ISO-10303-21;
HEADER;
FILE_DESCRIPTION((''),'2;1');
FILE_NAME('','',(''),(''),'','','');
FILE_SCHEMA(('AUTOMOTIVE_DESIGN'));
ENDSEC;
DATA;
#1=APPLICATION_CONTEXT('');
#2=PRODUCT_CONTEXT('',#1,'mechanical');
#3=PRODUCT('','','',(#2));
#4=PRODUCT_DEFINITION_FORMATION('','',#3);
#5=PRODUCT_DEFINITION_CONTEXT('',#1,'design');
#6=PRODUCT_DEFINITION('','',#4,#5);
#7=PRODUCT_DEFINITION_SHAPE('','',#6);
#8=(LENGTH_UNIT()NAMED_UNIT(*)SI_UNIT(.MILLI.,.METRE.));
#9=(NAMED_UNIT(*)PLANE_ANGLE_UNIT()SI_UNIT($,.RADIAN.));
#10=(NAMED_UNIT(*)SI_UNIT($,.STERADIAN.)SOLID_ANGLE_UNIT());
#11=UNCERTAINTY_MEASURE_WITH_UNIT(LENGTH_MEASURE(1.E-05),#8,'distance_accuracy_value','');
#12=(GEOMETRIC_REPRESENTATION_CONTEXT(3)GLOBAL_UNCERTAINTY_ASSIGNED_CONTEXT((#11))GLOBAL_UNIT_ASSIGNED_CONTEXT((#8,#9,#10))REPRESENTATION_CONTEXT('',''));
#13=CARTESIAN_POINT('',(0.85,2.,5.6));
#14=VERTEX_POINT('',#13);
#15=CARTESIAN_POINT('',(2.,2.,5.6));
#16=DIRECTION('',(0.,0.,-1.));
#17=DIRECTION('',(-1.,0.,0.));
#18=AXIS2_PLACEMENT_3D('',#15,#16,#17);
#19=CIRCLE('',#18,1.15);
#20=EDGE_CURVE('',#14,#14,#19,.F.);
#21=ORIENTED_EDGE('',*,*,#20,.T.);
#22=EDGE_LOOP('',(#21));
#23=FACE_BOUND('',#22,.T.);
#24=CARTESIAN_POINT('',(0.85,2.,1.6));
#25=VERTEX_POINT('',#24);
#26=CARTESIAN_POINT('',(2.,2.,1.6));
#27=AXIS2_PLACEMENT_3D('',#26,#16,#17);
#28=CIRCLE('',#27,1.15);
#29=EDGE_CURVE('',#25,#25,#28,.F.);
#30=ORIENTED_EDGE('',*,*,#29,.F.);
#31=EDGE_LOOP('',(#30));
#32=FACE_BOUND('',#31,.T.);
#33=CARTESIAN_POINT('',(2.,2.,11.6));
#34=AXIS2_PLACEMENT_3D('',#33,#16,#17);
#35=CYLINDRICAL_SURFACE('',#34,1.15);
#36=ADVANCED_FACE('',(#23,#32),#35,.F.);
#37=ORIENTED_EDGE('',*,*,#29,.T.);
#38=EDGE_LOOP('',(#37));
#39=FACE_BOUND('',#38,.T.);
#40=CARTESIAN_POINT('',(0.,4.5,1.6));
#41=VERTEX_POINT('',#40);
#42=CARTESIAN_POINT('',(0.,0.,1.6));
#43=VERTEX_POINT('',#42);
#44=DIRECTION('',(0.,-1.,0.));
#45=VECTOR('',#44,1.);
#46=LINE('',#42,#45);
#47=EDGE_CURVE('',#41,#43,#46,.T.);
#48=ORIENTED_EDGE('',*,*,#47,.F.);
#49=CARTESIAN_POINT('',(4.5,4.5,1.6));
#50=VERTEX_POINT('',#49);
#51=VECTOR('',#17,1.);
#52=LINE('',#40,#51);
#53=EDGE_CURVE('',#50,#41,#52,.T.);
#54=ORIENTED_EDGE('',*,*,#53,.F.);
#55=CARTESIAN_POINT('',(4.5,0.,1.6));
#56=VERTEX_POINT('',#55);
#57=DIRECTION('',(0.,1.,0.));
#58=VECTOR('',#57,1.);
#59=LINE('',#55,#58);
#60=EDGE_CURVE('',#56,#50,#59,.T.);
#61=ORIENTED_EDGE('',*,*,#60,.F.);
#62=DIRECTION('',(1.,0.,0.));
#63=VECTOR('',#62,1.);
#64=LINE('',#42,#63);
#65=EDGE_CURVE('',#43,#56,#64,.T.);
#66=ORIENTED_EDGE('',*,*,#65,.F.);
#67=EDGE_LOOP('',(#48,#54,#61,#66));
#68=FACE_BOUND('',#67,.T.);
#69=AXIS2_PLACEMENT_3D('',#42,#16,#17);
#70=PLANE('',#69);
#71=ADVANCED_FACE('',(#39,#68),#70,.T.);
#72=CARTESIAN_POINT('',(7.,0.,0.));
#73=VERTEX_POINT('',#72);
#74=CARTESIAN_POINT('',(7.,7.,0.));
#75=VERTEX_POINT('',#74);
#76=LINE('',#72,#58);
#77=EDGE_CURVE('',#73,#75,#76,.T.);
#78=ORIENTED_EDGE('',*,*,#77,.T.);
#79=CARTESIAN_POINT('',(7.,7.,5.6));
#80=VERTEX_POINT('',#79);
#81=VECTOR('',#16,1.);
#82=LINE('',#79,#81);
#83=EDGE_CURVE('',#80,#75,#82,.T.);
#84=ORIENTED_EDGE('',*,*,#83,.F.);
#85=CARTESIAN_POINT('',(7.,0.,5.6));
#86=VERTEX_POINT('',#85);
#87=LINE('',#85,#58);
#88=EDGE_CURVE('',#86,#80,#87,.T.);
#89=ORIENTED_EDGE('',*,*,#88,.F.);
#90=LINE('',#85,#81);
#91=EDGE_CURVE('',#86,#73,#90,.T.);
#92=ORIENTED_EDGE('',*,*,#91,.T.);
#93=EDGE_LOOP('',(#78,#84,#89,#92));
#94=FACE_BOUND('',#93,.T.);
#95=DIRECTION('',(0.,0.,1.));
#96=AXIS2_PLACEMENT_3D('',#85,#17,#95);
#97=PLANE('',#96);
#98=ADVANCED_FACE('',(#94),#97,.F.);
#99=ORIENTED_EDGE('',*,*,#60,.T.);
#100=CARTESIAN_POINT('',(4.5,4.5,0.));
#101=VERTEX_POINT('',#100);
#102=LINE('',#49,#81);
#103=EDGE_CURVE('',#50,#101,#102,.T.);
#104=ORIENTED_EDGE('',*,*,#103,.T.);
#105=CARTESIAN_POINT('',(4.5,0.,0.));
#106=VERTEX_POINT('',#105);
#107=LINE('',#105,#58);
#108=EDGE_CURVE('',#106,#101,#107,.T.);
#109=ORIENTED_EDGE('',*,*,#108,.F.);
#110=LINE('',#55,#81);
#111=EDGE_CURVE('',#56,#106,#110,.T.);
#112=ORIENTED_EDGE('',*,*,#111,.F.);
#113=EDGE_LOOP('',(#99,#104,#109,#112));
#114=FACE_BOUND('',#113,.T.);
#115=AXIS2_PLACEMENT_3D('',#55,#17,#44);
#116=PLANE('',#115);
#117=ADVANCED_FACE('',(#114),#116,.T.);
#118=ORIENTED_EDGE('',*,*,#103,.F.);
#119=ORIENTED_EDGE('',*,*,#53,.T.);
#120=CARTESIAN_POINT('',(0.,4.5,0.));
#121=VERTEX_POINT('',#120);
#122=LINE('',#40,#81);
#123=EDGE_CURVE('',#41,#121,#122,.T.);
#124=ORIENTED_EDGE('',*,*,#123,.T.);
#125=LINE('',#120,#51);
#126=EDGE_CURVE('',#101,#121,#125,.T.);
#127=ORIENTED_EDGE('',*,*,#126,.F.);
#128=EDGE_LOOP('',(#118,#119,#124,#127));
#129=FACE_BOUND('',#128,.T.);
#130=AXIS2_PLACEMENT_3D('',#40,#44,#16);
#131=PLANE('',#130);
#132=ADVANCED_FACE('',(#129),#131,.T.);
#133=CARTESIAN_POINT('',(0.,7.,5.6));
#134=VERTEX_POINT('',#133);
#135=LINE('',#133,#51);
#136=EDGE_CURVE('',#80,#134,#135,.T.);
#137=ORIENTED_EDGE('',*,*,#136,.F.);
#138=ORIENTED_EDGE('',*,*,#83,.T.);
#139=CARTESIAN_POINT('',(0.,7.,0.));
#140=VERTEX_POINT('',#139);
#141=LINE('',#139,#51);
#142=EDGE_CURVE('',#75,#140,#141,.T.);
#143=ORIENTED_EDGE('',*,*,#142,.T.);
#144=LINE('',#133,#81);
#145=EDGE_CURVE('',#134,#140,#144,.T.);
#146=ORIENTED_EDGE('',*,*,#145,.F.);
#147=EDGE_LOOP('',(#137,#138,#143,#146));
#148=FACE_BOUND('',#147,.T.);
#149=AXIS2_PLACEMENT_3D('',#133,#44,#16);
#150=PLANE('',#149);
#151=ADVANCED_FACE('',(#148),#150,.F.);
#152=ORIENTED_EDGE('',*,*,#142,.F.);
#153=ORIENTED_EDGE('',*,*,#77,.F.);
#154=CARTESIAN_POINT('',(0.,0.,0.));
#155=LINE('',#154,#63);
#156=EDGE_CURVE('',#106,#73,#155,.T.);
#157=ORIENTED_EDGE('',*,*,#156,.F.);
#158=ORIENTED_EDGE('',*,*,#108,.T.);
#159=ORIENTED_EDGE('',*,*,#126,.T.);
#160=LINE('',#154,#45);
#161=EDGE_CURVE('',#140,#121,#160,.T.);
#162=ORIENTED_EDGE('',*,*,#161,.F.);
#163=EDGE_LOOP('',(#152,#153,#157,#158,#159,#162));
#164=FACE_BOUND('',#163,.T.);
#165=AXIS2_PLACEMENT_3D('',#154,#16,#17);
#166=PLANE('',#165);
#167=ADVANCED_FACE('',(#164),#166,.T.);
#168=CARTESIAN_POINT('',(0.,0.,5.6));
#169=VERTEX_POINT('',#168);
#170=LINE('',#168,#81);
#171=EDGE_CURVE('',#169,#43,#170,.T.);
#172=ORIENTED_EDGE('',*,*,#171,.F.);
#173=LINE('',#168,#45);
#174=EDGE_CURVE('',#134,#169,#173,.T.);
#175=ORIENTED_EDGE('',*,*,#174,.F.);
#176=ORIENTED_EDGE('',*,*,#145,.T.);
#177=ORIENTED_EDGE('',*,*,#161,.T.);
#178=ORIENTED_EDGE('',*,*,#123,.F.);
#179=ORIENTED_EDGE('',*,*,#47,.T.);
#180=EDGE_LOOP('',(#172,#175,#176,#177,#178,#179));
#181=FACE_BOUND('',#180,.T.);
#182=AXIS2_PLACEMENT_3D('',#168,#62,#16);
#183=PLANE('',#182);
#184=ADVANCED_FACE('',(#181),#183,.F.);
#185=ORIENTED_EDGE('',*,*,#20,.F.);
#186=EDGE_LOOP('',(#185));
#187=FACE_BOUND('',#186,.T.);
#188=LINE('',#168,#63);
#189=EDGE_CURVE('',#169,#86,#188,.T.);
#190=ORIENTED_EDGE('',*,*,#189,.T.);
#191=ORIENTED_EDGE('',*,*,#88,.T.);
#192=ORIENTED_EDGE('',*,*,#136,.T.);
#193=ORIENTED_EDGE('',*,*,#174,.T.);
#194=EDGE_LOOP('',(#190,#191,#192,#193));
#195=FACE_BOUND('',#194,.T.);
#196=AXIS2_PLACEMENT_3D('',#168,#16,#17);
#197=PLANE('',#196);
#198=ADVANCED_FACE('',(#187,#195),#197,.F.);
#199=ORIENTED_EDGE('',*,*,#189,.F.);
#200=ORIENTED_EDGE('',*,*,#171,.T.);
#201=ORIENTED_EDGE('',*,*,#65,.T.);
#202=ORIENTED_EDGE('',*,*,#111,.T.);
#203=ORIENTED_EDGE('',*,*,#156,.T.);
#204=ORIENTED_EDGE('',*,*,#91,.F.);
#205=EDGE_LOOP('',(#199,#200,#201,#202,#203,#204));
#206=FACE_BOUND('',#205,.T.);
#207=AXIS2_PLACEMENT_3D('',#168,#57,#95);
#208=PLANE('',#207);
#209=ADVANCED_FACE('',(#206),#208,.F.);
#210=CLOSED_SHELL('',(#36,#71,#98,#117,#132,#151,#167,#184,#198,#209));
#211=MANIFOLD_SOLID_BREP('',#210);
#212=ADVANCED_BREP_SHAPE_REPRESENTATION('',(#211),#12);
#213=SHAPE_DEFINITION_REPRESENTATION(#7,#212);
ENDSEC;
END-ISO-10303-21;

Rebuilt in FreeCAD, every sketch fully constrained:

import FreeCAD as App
import Part
import Sketcher
from FreeCAD import Vector
Q = App.Units.Quantity

doc = App.newDocument("Part")
body = doc.addObject("PartDesign::Body", "Body")

# Sketch on XY plane
sketch1 = doc.addObject("Sketcher::SketchObject", "Sketch")
body.addObject(sketch1)
sketch1.AttachmentSupport = (doc.XY_Plane, [""])
sketch1.MapMode = "FlatFace"
sketch1.addGeometry([
    Part.LineSegment(Vector(0, 7, 0), Vector(0, 0, 0)),
    Part.LineSegment(Vector(0, 0, 0), Vector(7, 0, 0)),
    Part.LineSegment(Vector(7, 0, 0), Vector(7, 7, 0)),
    Part.LineSegment(Vector(7, 7, 0), Vector(0, 7, 0)),
], False)
sketch1.addConstraint([
    Sketcher.Constraint("Coincident", 0, 2, 1, 1),
    Sketcher.Constraint("Coincident", 1, 2, 2, 1),
    Sketcher.Constraint("Coincident", 2, 2, 3, 1),
    Sketcher.Constraint("Coincident", 3, 2, 0, 1),
    Sketcher.Constraint("Vertical", 0),
    Sketcher.Constraint("Horizontal", 1),
    Sketcher.Constraint("Vertical", 2),
    Sketcher.Constraint("Horizontal", 3),
    Sketcher.Constraint("Coincident", 0, 2, -1, 1),
    Sketcher.Constraint("Equal", 3, 0),
    Sketcher.Constraint("DistanceX", 1, 1, 1, 2, Q("7 mm")),
])
pad1 = doc.addObject("PartDesign::Pad", "Pad")
body.addObject(pad1)
pad1.Profile = sketch1
pad1.Length = 5.6

# Sketch on XY plane
sketch2 = doc.addObject("Sketcher::SketchObject", "Sketch001")
body.addObject(sketch2)
sketch2.AttachmentSupport = (doc.XY_Plane, [""])
sketch2.MapMode = "FlatFace"
sketch2.addGeometry([
    Part.LineSegment(Vector(0, 4.5, 0), Vector(0, 0, 0)),
    Part.LineSegment(Vector(0, 0, 0), Vector(4.5, 0, 0)),
    Part.LineSegment(Vector(4.5, 0, 0), Vector(4.5, 4.5, 0)),
    Part.LineSegment(Vector(4.5, 4.5, 0), Vector(0, 4.5, 0)),
], False)
sketch2.addConstraint([
    Sketcher.Constraint("Coincident", 0, 2, 1, 1),
    Sketcher.Constraint("Coincident", 1, 2, 2, 1),
    Sketcher.Constraint("Coincident", 2, 2, 3, 1),
    Sketcher.Constraint("Coincident", 3, 2, 0, 1),
    Sketcher.Constraint("Vertical", 0),
    Sketcher.Constraint("Horizontal", 1),
    Sketcher.Constraint("Vertical", 2),
    Sketcher.Constraint("Horizontal", 3),
    Sketcher.Constraint("Coincident", 0, 2, -1, 1),
    Sketcher.Constraint("Equal", 3, 0),
    Sketcher.Constraint("DistanceX", 1, 1, 1, 2, Q("4.5 mm")),
])
pocket1 = doc.addObject("PartDesign::Pocket", "Pocket")
body.addObject(pocket1)
pocket1.Profile = sketch2
pocket1.Length = 1.6
pocket1.Reversed = True

# Sketch on XY plane
sketch3 = doc.addObject("Sketcher::SketchObject", "Sketch002")
body.addObject(sketch3)
sketch3.AttachmentSupport = (doc.XY_Plane, [""])
sketch3.MapMode = "FlatFace"
sketch3.addGeometry(Part.Circle(Vector(2, 2, 0), Vector(0, 0, 1), 1.1), False)
sketch3.addConstraint([
    Sketcher.Constraint("Diameter", 0, Q("2.3 mm")),
    Sketcher.Constraint("DistanceX", -1, 1, 0, 3, Q("2 mm")),
    Sketcher.Constraint("DistanceY", -1, 1, 0, 3, Q("2 mm")),
])
pocket2 = doc.addObject("PartDesign::Pocket", "Pocket001")
body.addObject(pocket2)
pocket2.Profile = sketch3
pocket2.Length = 11.6
pocket2.Reversed = True

doc.recompute()
